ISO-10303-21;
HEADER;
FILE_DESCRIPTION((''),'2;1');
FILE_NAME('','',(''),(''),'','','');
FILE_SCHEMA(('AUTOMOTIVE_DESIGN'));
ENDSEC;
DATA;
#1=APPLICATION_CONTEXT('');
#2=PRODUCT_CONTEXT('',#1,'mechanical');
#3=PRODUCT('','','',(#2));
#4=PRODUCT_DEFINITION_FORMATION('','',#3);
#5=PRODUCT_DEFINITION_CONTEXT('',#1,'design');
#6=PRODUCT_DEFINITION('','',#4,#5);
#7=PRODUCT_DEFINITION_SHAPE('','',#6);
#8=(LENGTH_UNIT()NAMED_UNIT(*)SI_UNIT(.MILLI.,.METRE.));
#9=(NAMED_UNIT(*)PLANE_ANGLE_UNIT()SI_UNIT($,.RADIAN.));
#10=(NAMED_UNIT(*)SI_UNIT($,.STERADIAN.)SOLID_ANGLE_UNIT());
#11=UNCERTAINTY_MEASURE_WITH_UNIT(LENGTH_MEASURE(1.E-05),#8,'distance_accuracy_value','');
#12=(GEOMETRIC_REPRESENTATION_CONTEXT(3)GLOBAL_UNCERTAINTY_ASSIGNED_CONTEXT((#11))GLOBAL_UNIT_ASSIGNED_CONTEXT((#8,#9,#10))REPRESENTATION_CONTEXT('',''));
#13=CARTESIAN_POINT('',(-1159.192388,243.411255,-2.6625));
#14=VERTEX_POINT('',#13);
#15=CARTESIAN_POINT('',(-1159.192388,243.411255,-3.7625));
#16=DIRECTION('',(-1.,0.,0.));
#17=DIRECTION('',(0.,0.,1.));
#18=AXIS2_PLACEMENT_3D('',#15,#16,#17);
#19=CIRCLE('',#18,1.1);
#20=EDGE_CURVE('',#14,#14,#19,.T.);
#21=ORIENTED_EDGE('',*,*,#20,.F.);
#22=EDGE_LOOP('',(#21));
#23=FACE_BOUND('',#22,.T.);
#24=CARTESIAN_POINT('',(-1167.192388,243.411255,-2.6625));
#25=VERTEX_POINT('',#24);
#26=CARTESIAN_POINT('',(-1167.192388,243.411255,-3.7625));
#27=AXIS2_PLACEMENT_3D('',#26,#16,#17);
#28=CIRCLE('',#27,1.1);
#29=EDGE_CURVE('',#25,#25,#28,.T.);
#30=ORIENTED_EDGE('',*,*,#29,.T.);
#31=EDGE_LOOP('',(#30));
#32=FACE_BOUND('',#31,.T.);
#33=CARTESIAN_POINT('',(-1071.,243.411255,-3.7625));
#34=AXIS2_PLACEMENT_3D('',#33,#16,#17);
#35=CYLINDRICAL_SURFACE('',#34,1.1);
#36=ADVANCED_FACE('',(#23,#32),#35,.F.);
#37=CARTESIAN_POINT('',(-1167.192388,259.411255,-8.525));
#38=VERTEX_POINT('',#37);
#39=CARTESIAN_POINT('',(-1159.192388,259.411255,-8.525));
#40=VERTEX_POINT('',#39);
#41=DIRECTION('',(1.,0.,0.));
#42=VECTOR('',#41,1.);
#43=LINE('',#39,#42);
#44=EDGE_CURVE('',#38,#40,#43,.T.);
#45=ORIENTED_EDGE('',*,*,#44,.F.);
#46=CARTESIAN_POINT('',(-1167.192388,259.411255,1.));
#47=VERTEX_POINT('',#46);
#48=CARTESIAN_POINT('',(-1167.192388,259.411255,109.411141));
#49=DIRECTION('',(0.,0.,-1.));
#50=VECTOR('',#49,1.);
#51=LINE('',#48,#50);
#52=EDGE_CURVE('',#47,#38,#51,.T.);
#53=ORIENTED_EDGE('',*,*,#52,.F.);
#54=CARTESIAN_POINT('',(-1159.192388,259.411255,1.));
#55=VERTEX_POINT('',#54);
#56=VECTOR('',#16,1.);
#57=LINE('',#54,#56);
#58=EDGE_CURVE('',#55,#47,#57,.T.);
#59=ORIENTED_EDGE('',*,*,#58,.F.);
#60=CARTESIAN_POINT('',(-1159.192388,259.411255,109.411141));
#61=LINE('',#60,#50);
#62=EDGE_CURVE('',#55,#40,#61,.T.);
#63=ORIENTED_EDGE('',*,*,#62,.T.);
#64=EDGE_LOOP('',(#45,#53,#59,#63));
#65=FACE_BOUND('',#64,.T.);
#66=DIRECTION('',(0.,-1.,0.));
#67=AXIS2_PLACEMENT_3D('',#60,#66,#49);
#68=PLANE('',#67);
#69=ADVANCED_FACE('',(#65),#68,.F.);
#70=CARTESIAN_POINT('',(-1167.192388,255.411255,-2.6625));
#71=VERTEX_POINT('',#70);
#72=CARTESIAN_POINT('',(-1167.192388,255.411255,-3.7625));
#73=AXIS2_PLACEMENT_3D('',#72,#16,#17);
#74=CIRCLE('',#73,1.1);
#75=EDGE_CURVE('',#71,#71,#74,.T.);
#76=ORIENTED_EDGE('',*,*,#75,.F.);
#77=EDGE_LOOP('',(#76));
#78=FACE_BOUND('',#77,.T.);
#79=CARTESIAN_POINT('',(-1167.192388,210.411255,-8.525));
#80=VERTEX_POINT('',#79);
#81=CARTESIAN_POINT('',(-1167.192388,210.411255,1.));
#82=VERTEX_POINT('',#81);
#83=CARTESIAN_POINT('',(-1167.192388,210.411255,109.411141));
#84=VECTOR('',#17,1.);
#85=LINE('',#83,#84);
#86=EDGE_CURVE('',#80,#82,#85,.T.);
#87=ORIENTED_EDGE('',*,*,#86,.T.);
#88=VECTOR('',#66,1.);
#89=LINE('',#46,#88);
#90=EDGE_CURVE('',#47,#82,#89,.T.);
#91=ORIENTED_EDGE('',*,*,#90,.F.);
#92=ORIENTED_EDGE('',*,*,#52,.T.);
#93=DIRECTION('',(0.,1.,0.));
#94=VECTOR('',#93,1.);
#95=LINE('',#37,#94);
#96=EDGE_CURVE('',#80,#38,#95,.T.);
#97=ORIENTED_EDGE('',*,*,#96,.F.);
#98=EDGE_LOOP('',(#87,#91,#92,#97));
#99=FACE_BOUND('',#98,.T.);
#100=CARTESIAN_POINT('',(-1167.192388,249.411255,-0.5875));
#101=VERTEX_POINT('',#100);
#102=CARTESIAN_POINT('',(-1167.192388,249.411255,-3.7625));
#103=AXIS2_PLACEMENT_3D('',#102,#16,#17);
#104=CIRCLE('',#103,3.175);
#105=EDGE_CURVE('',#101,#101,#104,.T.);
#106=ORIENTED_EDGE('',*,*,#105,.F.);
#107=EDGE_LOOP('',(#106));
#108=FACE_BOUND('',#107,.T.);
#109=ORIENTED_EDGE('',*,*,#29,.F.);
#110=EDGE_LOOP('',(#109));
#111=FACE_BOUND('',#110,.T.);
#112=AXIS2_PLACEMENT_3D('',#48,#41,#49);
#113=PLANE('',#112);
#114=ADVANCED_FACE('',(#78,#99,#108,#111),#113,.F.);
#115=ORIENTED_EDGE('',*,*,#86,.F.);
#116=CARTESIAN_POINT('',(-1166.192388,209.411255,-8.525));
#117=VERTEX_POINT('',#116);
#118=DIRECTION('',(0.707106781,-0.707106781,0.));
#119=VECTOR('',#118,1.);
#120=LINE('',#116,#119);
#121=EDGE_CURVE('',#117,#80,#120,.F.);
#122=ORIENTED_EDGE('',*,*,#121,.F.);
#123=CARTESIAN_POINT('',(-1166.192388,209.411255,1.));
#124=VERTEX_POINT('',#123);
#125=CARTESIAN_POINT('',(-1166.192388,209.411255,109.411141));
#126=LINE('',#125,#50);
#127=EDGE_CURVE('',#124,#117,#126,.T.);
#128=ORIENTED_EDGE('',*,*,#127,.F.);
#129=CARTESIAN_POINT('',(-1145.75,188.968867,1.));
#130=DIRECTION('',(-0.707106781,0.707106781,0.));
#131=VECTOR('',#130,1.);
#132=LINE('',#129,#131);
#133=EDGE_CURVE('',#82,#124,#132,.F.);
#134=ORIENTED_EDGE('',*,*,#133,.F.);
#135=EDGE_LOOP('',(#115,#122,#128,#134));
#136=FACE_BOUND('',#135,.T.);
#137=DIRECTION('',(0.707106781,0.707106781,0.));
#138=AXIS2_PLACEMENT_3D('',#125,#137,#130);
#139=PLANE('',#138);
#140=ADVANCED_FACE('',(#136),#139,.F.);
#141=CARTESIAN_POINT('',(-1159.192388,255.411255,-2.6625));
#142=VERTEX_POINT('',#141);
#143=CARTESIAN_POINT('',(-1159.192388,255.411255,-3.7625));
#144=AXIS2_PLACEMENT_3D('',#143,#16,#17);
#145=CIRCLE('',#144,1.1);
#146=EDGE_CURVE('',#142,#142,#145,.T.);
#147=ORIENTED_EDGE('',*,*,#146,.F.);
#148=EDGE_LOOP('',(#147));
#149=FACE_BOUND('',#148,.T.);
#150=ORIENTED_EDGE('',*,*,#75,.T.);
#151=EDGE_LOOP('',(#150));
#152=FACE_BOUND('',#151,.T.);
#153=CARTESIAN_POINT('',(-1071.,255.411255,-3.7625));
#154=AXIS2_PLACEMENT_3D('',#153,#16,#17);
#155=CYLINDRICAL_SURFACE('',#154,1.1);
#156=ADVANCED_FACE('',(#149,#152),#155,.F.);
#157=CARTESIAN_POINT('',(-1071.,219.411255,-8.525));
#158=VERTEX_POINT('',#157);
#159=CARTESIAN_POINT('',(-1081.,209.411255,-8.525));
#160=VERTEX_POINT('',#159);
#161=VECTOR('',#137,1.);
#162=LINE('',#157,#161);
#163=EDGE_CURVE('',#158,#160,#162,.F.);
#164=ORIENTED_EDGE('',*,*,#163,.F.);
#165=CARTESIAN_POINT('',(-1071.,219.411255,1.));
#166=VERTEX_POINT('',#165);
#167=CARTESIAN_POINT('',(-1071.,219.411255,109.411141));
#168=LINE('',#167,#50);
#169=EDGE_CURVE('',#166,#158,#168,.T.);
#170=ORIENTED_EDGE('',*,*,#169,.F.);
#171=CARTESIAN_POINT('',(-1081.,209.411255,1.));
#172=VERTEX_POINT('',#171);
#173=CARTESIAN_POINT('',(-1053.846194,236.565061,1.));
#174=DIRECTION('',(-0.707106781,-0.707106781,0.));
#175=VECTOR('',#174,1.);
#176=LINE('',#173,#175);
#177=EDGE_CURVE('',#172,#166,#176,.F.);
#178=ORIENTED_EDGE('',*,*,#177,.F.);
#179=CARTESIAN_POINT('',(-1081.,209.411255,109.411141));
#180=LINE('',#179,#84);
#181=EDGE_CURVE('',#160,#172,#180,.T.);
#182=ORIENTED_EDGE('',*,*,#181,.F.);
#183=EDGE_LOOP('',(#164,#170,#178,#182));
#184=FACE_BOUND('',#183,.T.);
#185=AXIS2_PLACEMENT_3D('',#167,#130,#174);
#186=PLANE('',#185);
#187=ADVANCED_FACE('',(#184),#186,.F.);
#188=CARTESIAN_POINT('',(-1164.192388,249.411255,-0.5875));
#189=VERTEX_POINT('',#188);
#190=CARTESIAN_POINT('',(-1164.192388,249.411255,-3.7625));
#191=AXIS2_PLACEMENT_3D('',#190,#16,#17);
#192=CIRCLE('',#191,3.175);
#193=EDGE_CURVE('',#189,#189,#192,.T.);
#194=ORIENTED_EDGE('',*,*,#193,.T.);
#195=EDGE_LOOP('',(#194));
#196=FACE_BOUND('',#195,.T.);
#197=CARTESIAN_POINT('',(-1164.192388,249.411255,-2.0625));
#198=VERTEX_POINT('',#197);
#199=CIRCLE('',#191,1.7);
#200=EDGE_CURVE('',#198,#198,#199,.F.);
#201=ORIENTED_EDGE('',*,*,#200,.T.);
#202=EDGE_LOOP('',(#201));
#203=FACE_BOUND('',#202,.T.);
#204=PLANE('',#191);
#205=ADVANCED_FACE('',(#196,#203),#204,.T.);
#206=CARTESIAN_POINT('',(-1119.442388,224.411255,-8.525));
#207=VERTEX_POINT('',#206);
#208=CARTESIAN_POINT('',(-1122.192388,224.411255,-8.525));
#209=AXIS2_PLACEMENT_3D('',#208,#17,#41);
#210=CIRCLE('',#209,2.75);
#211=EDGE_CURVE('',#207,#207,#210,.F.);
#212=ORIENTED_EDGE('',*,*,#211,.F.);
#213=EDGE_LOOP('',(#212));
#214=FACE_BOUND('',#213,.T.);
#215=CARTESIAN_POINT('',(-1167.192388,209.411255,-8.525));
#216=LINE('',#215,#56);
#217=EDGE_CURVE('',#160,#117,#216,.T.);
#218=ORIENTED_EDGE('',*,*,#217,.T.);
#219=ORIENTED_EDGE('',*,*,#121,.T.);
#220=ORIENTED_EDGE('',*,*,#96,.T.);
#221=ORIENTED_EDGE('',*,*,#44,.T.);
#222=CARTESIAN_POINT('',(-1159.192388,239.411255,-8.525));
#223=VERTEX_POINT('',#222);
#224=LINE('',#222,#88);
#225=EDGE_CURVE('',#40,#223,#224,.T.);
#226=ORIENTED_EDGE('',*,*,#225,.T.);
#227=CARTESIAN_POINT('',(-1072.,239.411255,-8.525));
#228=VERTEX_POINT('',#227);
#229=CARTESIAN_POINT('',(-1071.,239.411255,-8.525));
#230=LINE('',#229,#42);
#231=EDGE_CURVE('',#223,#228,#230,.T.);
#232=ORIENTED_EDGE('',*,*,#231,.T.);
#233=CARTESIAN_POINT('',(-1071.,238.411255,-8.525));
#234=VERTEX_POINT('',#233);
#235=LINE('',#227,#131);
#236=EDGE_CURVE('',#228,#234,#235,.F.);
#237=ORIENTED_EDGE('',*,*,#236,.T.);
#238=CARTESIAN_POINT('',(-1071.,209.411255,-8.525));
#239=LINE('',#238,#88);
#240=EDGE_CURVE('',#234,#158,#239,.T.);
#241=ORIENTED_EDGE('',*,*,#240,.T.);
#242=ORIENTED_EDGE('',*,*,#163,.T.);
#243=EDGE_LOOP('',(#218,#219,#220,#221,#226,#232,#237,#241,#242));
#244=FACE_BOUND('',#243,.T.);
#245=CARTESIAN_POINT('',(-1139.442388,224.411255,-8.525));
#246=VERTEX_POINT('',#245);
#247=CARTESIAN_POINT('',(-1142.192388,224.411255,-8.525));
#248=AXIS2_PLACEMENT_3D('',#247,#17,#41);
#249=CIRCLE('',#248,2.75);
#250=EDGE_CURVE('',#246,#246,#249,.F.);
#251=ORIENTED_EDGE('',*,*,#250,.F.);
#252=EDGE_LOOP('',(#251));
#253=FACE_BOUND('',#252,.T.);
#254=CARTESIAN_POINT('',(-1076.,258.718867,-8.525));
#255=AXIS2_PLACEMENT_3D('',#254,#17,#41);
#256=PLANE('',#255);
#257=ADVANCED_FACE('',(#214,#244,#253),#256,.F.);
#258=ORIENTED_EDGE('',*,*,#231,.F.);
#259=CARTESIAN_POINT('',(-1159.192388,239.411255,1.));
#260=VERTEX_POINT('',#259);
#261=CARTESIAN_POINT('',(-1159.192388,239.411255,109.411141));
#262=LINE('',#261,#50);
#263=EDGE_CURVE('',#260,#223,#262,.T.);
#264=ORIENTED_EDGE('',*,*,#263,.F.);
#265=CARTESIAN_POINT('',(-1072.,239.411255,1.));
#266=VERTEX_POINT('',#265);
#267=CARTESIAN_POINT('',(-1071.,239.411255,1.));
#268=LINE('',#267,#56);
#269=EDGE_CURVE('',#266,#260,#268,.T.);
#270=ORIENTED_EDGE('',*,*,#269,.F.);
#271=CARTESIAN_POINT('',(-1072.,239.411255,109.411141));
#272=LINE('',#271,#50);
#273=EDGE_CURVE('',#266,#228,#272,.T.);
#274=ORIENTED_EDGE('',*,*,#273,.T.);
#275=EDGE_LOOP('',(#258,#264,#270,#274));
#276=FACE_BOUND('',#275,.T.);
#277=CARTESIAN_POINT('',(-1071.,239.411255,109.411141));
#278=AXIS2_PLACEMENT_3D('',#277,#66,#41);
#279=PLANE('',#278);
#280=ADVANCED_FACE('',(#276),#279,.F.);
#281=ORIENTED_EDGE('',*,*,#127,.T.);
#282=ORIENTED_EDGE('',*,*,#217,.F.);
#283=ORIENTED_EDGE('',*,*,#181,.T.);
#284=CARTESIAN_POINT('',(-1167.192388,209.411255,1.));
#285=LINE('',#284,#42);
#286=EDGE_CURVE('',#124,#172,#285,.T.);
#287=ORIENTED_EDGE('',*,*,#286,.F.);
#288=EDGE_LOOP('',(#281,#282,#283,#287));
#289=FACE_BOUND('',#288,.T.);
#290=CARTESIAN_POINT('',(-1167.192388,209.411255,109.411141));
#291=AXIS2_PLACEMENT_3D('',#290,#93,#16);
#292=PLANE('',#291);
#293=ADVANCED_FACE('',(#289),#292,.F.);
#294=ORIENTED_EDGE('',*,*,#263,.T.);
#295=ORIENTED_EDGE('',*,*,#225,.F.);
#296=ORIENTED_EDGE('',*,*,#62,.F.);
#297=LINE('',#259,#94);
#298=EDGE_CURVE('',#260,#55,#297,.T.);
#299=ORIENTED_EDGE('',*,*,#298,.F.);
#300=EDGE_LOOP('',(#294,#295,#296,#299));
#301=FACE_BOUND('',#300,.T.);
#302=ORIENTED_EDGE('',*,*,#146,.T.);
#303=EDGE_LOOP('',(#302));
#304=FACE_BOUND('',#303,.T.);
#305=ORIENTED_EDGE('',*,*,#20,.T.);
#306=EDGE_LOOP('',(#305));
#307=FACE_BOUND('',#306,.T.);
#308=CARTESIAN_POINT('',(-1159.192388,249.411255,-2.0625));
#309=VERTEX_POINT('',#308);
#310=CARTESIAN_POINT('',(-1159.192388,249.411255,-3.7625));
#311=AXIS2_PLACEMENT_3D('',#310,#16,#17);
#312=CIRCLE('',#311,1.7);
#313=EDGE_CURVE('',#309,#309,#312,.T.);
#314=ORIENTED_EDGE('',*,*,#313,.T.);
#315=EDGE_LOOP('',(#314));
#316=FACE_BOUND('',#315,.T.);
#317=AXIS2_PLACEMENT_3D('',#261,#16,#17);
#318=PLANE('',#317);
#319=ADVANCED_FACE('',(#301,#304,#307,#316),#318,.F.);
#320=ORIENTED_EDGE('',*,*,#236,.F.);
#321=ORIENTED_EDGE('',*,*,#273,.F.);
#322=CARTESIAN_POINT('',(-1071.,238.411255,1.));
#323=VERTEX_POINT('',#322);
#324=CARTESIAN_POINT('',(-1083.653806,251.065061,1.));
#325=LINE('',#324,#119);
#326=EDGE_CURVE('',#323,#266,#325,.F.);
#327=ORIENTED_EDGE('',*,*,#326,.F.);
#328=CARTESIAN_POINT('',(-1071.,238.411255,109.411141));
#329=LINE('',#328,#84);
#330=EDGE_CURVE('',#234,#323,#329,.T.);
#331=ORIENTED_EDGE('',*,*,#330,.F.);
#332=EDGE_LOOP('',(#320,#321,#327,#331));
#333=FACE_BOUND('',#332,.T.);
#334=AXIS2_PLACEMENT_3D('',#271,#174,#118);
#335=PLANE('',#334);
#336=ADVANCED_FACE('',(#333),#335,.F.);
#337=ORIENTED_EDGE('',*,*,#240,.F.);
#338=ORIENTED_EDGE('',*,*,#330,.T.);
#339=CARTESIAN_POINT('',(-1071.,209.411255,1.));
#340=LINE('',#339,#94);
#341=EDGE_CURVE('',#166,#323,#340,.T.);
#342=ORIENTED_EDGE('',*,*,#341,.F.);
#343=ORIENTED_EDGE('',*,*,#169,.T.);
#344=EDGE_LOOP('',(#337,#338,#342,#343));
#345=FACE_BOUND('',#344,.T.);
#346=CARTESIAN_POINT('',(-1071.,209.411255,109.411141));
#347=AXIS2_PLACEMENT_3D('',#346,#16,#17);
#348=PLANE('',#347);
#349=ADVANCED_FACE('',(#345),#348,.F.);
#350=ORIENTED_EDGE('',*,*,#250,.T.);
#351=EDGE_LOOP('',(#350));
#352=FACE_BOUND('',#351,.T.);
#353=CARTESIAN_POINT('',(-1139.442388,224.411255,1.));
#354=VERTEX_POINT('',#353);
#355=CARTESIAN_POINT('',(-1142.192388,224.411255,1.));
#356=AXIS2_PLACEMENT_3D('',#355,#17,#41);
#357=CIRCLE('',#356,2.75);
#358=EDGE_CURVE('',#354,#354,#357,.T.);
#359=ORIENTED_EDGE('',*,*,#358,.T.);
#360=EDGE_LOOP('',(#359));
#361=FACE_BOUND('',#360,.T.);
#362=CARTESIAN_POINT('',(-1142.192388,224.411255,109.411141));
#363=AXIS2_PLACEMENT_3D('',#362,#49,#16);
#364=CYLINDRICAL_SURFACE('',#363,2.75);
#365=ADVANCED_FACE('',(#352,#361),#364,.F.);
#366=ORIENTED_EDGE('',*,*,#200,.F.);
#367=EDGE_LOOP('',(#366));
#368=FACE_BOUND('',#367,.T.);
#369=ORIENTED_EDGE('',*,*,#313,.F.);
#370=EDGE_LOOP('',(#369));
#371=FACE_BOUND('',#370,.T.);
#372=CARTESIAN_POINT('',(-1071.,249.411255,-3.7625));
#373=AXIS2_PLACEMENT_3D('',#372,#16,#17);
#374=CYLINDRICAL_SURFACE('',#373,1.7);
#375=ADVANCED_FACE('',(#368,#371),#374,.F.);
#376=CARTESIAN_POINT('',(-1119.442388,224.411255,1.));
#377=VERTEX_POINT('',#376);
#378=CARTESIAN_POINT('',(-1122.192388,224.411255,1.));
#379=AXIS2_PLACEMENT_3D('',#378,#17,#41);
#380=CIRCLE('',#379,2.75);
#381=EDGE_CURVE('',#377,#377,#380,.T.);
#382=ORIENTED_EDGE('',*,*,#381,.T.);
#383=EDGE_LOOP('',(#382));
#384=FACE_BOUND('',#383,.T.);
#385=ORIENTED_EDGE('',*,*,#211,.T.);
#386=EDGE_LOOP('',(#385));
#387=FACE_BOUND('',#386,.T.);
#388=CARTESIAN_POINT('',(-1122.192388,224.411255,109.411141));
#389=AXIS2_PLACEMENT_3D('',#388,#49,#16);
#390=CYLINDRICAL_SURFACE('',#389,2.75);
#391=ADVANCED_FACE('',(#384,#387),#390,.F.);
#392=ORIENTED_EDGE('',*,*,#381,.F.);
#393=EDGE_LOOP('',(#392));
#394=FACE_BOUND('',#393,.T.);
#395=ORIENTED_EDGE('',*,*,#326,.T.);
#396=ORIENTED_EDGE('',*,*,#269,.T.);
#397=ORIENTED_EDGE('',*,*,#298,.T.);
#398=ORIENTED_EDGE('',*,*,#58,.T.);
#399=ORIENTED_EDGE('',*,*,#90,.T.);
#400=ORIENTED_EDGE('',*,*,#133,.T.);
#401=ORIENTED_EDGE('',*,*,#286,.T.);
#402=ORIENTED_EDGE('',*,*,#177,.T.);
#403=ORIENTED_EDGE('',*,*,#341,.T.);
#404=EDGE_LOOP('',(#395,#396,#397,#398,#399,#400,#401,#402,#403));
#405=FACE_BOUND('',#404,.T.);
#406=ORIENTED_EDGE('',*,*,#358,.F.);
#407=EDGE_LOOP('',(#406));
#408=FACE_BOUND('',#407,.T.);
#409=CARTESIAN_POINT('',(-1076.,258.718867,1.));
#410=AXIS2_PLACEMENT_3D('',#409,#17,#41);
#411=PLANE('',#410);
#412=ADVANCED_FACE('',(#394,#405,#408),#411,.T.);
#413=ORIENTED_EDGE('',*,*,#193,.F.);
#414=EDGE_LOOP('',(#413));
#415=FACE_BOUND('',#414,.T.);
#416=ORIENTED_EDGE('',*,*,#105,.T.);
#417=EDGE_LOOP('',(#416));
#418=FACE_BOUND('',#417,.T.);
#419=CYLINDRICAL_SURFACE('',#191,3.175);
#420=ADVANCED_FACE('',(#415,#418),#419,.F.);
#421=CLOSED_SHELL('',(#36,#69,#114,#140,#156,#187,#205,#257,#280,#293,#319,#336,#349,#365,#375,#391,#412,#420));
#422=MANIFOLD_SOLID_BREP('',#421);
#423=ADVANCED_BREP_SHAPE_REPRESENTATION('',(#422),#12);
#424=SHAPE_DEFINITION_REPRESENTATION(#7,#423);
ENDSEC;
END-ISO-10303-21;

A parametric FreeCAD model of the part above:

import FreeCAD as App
import Part
import Sketcher

V = App.Vector
Q = App.Units.Quantity


def edges_at(feature, points):
    """Names of the edges that pass closest to the given points."""
    edges = feature.Shape.Edges
    near = lambda p: min(range(len(edges)), key=lambda i: edges[i].distToShape(Part.Vertex(*p))[0])
    return sorted({f"Edge{near(p) + 1}" for p in points})

doc = App.newDocument("Part")
body = doc.addObject("PartDesign::Body", "Body")

# Sketch on XY plane
sketch1 = doc.addObject("Sketcher::SketchObject", "Sketch")
body.addObject(sketch1)
sketch1.AttachmentSupport = (doc.XY_Plane, [""])
sketch1.MapMode = "FlatFace"
sketch1.addGeometry(Part.LineSegment(V(-1071, 209.4, 0), V(-1071, 239.4, 0)), False)
sketch1.addGeometry(Part.LineSegment(V(-1071, 239.4, 0), V(-1159.2, 239.4, 0)), False)
sketch1.addGeometry(Part.LineSegment(V(-1159.2, 239.4, 0), V(-1159.2, 259.4, 0)), False)
sketch1.addGeometry(Part.LineSegment(V(-1159.2, 259.4, 0), V(-1167.2, 259.4, 0)), False)
sketch1.addGeometry(Part.LineSegment(V(-1167.2, 259.4, 0), V(-1167.2, 209.4, 0)), False)
sketch1.addGeometry(Part.LineSegment(V(-1167.2, 209.4, 0), V(-1071, 209.4, 0)), False)
sketch1.addGeometry(Part.Circle(V(-1142.2, 224.4, 0), V(0, 0, 1), 2.8), False)
sketch1.addGeometry(Part.Circle(V(-1122.2, 224.4, 0), V(0, 0, 1), 2.8), False)
sketch1.addConstraint(Sketcher.Constraint("Coincident", 0, 2, 1, 1))
sketch1.addConstraint(Sketcher.Constraint("Coincident", 1, 2, 2, 1))
sketch1.addConstraint(Sketcher.Constraint("Coincident", 2, 2, 3, 1))
sketch1.addConstraint(Sketcher.Constraint("Coincident", 3, 2, 4, 1))
sketch1.addConstraint(Sketcher.Constraint("Coincident", 4, 2, 5, 1))
sketch1.addConstraint(Sketcher.Constraint("Coincident", 5, 2, 0, 1))
sketch1.addConstraint(Sketcher.Constraint("Vertical", 0))
sketch1.addConstraint(Sketcher.Constraint("Horizontal", 1))
sketch1.addConstraint(Sketcher.Constraint("Vertical", 2))
sketch1.addConstraint(Sketcher.Constraint("Horizontal", 3))
sketch1.addConstraint(Sketcher.Constraint("Vertical", 4))
sketch1.addConstraint(Sketcher.Constraint("Horizontal", 5))
sketch1.addConstraint(Sketcher.Constraint("Equal", 6, 7))
sketch1.addConstraint(Sketcher.Constraint("Horizontal", 6, 3, 7, 3))
sketch1.addConstraint(Sketcher.Constraint("Diameter", 6, Q("5.5 mm")))
sketch1.addConstraint(Sketcher.Constraint("DistanceX", 3, 2, 3, 1, Q("8 mm")))
sketch1.addConstraint(Sketcher.Constraint("DistanceY", 0, 1, 0, 2, Q("30 mm")))
sketch1.addConstraint(Sketcher.Constraint("DistanceY", 2, 1, 2, 2, Q("20 mm")))
sketch1.addConstraint(Sketcher.Constraint("DistanceX", 0, 2, -1, 1, Q("1071 mm")))
sketch1.addConstraint(Sketcher.Constraint("DistanceX", 6, 3, 7, 3, Q("20 mm")))
sketch1.addConstraint(Sketcher.Constraint("DistanceY", 7, 3, 0, 2, Q("15 mm")))
sketch1.addConstraint(Sketcher.Constraint("DistanceX", 1, 2, 6, 3, Q("17 mm")))
sketch1.addConstraint(Sketcher.Constraint("DistanceX", 1, 2, 1, 1, Q("88.192388 mm")))
sketch1.addConstraint(Sketcher.Constraint("DistanceY", -1, 1, 6, 3, Q("224.411255 mm")))
pad1 = doc.addObject("PartDesign::Pad", "Pad")
body.addObject(pad1)
pad1.Profile = sketch1
pad1.Type = "TwoLengths"
pad1.Length = 1
pad1.Length2 = 8.525
doc.recompute()

chamfer = doc.addObject("PartDesign::Chamfer", "Chamfer")
body.addObject(chamfer)
chamfer.Base = (pad1, edges_at(pad1, [(-1071, 209.411, -3.763)]))
chamfer.Size = 10
doc.recompute()

chamfer2 = doc.addObject("PartDesign::Chamfer", "Chamfer001")
body.addObject(chamfer2)
chamfer2.Base = (chamfer, edges_at(chamfer, [(-1167.192, 209.411, -3.763), (-1071, 239.411, -3.763)]))
chamfer2.Size = 1

# Sketch on YZ plane
sketch2 = doc.addObject("Sketcher::SketchObject", "Sketch001")
body.addObject(sketch2)
sketch2.AttachmentSupport = (doc.YZ_Plane, [""])
sketch2.MapMode = "FlatFace"
sketch2.AttachmentOffset = App.Placement(V(0, 0, -1167.192388), App.Rotation())
sketch2.addGeometry(Part.Circle(V(249.4, -3.8, 0), V(0, 0, 1), 1.7), False)
sketch2.addConstraint(Sketcher.Constraint("Diameter", 0, Q("3.4 mm")))
sketch2.addConstraint(Sketcher.Constraint("DistanceY", 0, 3, -1, 1, Q("3.7625 mm")))
sketch2.addConstraint(Sketcher.Constraint("DistanceX", -1, 1, 0, 3, Q("249.411255 mm")))
pocket1 = doc.addObject("PartDesign::Pocket", "Pocket")
body.addObject(pocket1)
pocket1.Profile = sketch2
pocket1.Type = "ThroughAll"
pocket1.Reversed = True

# Sketch on YZ plane
sketch3 = doc.addObject("Sketcher::SketchObject", "Sketch002")
body.addObject(sketch3)
sketch3.AttachmentSupport = (doc.YZ_Plane, [""])
sketch3.MapMode = "FlatFace"
sketch3.AttachmentOffset = App.Placement(V(0, 0, -1167.192388), App.Rotation())
sketch3.addGeometry(Part.Circle(V(255.4, -3.8, 0), V(0, 0, 1), 1.1), False)
sketch3.addGeometry(Part.Circle(V(243.4, -3.8, 0), V(0, 0, 1), 1.1), False)
sketch3.addConstraint(Sketcher.Constraint("Equal", 0, 1))
sketch3.addConstraint(Sketcher.Constraint("Horizontal", 0, 3, 1, 3))
sketch3.addConstraint(Sketcher.Constraint("Diameter", 0, Q("2.2 mm")))
sketch3.addConstraint(Sketcher.Constraint("DistanceX", 1, 3, 0, 3, Q("12 mm")))
sketch3.addConstraint(Sketcher.Constraint("DistanceY", 0, 3, -1, 1, Q("3.7625 mm")))
sketch3.addConstraint(Sketcher.Constraint("DistanceX", -1, 1, 0, 3, Q("255.411255 mm")))
pocket2 = doc.addObject("PartDesign::Pocket", "Pocket001")
body.addObject(pocket2)
pocket2.Profile = sketch3
pocket2.Type = "ThroughAll"
pocket2.Reversed = True

# Sketch on YZ plane
sketch4 = doc.addObject("Sketcher::SketchObject", "Sketch003")
body.addObject(sketch4)
sketch4.AttachmentSupport = (doc.YZ_Plane, [""])
sketch4.MapMode = "FlatFace"
sketch4.AttachmentOffset = App.Placement(V(0, 0, -1167.192388), App.Rotation())
sketch4.addGeometry(Part.Circle(V(249.4, -3.8, 0), V(0, 0, 1), 3.2), False)
sketch4.addConstraint(Sketcher.Constraint("Diameter", 0, Q("6.35 mm")))
sketch4.addConstraint(Sketcher.Constraint("DistanceY", 0, 3, -1, 1, Q("3.7625 mm")))
sketch4.addConstraint(Sketcher.Constraint("DistanceX", -1, 1, 0, 3, Q("249.411255 mm")))
pocket3 = doc.addObject("PartDesign::Pocket", "Pocket002")
body.addObject(pocket3)
pocket3.Profile = sketch4
pocket3.Length = 3
pocket3.Reversed = True

doc.recompute()
